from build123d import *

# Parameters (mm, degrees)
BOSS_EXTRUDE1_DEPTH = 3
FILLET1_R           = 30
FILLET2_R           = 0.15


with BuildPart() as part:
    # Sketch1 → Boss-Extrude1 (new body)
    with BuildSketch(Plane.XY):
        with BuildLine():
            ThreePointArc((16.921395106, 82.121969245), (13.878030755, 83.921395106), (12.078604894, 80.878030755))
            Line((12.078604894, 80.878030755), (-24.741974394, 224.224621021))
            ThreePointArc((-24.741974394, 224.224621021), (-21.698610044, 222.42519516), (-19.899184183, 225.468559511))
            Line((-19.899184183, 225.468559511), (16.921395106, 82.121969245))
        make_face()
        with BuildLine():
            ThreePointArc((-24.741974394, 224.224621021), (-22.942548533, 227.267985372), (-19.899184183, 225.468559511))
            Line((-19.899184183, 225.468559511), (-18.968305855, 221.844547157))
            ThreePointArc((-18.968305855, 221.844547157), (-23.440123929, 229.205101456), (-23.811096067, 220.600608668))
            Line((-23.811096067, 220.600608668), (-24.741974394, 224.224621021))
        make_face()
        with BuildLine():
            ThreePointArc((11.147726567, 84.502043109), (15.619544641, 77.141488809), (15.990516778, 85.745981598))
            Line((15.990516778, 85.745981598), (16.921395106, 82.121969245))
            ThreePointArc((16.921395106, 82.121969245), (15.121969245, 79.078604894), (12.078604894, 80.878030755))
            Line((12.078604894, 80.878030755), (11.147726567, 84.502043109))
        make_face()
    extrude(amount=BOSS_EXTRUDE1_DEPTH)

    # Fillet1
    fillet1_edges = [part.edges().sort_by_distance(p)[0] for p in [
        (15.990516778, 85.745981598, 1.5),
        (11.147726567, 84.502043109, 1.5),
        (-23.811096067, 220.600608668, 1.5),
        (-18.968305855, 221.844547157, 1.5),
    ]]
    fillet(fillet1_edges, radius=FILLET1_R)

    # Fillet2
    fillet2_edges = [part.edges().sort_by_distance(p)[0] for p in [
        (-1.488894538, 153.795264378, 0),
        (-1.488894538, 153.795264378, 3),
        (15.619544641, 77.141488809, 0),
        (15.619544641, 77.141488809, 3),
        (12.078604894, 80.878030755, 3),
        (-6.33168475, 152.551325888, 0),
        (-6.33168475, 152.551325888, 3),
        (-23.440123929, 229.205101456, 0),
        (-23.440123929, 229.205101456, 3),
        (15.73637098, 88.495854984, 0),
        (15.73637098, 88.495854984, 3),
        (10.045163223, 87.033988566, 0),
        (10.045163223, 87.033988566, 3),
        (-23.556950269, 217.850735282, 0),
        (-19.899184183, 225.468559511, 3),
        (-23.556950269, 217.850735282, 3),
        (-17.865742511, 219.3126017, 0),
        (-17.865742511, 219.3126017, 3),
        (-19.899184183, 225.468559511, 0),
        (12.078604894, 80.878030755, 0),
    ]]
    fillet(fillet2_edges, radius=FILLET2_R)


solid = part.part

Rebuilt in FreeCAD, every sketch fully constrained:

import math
import FreeCAD as App
import Part
import Sketcher

V = App.Vector
Q = App.Units.Quantity


def edges_at(feature, points):
    """Names of the edges that pass closest to the given points."""
    edges = feature.Shape.Edges
    near = lambda p: min(range(len(edges)), key=lambda i: edges[i].distToShape(Part.Vertex(*p))[0])
    return sorted({f"Edge{near(p) + 1}" for p in points})

doc = App.newDocument("Part")
params = doc.addObject("Spreadsheet::Sheet", "Params")
for row, (alias, value) in enumerate([
    ("sketch1_diameter", "5 mm"),
    ("sketch1_radius", "4.5 mm"),
    ("pad1_length", "3 mm"),
    ("fillet_radius", "30 mm"),
    ("fillet2_radius", "0.15 mm"),
], start=1):
    params.set(f"A{row}", alias)
    params.set(f"B{row}", "=" + value)
    params.setAlias(f"B{row}", alias)

body = doc.addObject("PartDesign::Body", "Body")

sketch1 = body.newObject("Sketcher::SketchObject", "Sketch")
sketch1.AttachmentSupport = (doc.getObject("XY_Plane"), [""])
sketch1.MapMode = "FlatFace"
sketch1.addGeometry(Part.LineSegment(V(-23.8, 220.6, 0), V(11.1, 84.5, 0)), False)
sketch1.addGeometry(Part.ArcOfCircle(Part.Circle(V(14.5, 81.5, 0), V(0, 0, 1), 4.5), math.radians(138), math.radians(431)), False)
sketch1.addGeometry(Part.LineSegment(V(16, 85.7, 0), V(-19, 221.8, 0)), False)
sketch1.addGeometry(Part.ArcOfCircle(Part.Circle(V(-22.3, 224.8, 0), V(0, 0, 1), 4.5), math.radians(-42), math.radians(251)), False)
sketch1.addGeometry(Part.Circle(V(14.5, 81.5, 0), V(0, 0, 1), 2.5), False)
sketch1.addGeometry(Part.ArcOfCircle(Part.Circle(V(-22.3, 224.8, 0), V(0, 0, 1), 2.5), math.radians(-166), math.radians(14)), False)
sketch1.addGeometry(Part.ArcOfCircle(Part.Circle(V(-22.3, 224.8, 0), V(0, 0, 1), 2.5), math.radians(14), math.radians(194)), False)
sketch1.addConstraint(Sketcher.Constraint("Coincident", 0, 2, 1, 1))
sketch1.addConstraint(Sketcher.Constraint("Coincident", 1, 2, 2, 1))
sketch1.addConstraint(Sketcher.Constraint("Coincident", 2, 2, 3, 1))
sketch1.addConstraint(Sketcher.Constraint("Coincident", 3, 2, 0, 1))
sketch1.addConstraint(Sketcher.Constraint("Tangent", 5, 1, 6, 2))
sketch1.addConstraint(Sketcher.Constraint("Coincident", 6, 1, 5, 2))
sketch1.addConstraint(Sketcher.Constraint("Coincident", 4, 3, 1, 3))
sketch1.addConstraint(Sketcher.Constraint("Coincident", 5, 3, 3, 3))
sketch1.addConstraint(Sketcher.Constraint("Equal", 1, 3))
sketch1.addConstraint(Sketcher.Constraint("Equal", 4, 5))
sketch1.addConstraint(Sketcher.Constraint("Parallel", 0, 2))
sketch1.addConstraint(Sketcher.Constraint("Equal", 0, 2))
sketch1.addConstraint(Sketcher.Constraint("Diameter", 4, Q("5 mm")))
sketch1.addConstraint(Sketcher.Constraint("Radius", 1, Q("4.5 mm")))
sketch1.addConstraint(Sketcher.Constraint("DistanceX", -1, 1, 1, 3, Q("14.5 mm")))
sketch1.addConstraint(Sketcher.Constraint("DistanceY", -1, 1, 1, 3, Q("81.5 mm")))
sketch1.addConstraint(Sketcher.Constraint("DistanceX", 3, 3, -1, 1, Q("22.320579 mm")))
sketch1.addConstraint(Sketcher.Constraint("DistanceY", -1, 1, 3, 3, Q("224.84659 mm")))
sketch1.addConstraint(Sketcher.Constraint("DistanceY", -1, 1, 1, 2, Q("85.745982 mm")))
sketch1.addConstraint(Sketcher.Constraint("DistanceY", -1, 1, 5, 1, Q("224.224621 mm")))
sketch1.addConstraint(Sketcher.Constraint("DistanceY", -1, 1, 6, 1, Q("225.46856 mm")))
sketch1.addConstraint(Sketcher.Constraint("DistanceX", 0, 2, 1, 2, Q("4.84279 mm")))
sketch1.setExpression("Constraints[12]", "Params.sketch1_diameter")
sketch1.setExpression("Constraints[13]", "Params.sketch1_radius")
pad1 = body.newObject("PartDesign::Pad", "Pad")
pad1.Profile = sketch1
pad1.setExpression("Length", "Params.pad1_length")
doc.recompute()

fillet = body.newObject("PartDesign::Fillet", "Fillet")
fillet.Base = (pad1, edges_at(pad1, [
    (15.991, 85.746, 1.5),
    (11.148, 84.502, 1.5),
    (-23.811, 220.601, 1.5),
    (-18.968, 221.845, 1.5),
]))
fillet.setExpression("Radius", "Params.fillet_radius")
doc.recompute()

fillet2 = body.newObject("PartDesign::Fillet", "Fillet001")
fillet2.Base = (fillet, edges_at(fillet, [
    (-1.489, 153.795, 0),
    (-1.489, 153.795, 3),
    (15.62, 77.141, 0),
    (15.62, 77.141, 3),
    (12.079, 80.878, 3),
    (-6.332, 152.551, 0),
    (-6.332, 152.551, 3),
    (-23.44, 229.205, 0),
    (-23.44, 229.205, 3),
    (15.736, 88.496, 0),
    (15.736, 88.496, 3),
    (10.045, 87.034, 0),
    (10.045, 87.034, 3),
    (-23.557, 217.851, 0),
    (-21.699, 222.425, 3),
    (-23.557, 217.851, 3),
    (-17.866, 219.313, 0),
    (-17.866, 219.313, 3),
    (-21.699, 222.425, 0),
    (12.079, 80.878, 0),
]))
fillet2.setExpression("Radius", "Params.fillet2_radius")

doc.recompute()
